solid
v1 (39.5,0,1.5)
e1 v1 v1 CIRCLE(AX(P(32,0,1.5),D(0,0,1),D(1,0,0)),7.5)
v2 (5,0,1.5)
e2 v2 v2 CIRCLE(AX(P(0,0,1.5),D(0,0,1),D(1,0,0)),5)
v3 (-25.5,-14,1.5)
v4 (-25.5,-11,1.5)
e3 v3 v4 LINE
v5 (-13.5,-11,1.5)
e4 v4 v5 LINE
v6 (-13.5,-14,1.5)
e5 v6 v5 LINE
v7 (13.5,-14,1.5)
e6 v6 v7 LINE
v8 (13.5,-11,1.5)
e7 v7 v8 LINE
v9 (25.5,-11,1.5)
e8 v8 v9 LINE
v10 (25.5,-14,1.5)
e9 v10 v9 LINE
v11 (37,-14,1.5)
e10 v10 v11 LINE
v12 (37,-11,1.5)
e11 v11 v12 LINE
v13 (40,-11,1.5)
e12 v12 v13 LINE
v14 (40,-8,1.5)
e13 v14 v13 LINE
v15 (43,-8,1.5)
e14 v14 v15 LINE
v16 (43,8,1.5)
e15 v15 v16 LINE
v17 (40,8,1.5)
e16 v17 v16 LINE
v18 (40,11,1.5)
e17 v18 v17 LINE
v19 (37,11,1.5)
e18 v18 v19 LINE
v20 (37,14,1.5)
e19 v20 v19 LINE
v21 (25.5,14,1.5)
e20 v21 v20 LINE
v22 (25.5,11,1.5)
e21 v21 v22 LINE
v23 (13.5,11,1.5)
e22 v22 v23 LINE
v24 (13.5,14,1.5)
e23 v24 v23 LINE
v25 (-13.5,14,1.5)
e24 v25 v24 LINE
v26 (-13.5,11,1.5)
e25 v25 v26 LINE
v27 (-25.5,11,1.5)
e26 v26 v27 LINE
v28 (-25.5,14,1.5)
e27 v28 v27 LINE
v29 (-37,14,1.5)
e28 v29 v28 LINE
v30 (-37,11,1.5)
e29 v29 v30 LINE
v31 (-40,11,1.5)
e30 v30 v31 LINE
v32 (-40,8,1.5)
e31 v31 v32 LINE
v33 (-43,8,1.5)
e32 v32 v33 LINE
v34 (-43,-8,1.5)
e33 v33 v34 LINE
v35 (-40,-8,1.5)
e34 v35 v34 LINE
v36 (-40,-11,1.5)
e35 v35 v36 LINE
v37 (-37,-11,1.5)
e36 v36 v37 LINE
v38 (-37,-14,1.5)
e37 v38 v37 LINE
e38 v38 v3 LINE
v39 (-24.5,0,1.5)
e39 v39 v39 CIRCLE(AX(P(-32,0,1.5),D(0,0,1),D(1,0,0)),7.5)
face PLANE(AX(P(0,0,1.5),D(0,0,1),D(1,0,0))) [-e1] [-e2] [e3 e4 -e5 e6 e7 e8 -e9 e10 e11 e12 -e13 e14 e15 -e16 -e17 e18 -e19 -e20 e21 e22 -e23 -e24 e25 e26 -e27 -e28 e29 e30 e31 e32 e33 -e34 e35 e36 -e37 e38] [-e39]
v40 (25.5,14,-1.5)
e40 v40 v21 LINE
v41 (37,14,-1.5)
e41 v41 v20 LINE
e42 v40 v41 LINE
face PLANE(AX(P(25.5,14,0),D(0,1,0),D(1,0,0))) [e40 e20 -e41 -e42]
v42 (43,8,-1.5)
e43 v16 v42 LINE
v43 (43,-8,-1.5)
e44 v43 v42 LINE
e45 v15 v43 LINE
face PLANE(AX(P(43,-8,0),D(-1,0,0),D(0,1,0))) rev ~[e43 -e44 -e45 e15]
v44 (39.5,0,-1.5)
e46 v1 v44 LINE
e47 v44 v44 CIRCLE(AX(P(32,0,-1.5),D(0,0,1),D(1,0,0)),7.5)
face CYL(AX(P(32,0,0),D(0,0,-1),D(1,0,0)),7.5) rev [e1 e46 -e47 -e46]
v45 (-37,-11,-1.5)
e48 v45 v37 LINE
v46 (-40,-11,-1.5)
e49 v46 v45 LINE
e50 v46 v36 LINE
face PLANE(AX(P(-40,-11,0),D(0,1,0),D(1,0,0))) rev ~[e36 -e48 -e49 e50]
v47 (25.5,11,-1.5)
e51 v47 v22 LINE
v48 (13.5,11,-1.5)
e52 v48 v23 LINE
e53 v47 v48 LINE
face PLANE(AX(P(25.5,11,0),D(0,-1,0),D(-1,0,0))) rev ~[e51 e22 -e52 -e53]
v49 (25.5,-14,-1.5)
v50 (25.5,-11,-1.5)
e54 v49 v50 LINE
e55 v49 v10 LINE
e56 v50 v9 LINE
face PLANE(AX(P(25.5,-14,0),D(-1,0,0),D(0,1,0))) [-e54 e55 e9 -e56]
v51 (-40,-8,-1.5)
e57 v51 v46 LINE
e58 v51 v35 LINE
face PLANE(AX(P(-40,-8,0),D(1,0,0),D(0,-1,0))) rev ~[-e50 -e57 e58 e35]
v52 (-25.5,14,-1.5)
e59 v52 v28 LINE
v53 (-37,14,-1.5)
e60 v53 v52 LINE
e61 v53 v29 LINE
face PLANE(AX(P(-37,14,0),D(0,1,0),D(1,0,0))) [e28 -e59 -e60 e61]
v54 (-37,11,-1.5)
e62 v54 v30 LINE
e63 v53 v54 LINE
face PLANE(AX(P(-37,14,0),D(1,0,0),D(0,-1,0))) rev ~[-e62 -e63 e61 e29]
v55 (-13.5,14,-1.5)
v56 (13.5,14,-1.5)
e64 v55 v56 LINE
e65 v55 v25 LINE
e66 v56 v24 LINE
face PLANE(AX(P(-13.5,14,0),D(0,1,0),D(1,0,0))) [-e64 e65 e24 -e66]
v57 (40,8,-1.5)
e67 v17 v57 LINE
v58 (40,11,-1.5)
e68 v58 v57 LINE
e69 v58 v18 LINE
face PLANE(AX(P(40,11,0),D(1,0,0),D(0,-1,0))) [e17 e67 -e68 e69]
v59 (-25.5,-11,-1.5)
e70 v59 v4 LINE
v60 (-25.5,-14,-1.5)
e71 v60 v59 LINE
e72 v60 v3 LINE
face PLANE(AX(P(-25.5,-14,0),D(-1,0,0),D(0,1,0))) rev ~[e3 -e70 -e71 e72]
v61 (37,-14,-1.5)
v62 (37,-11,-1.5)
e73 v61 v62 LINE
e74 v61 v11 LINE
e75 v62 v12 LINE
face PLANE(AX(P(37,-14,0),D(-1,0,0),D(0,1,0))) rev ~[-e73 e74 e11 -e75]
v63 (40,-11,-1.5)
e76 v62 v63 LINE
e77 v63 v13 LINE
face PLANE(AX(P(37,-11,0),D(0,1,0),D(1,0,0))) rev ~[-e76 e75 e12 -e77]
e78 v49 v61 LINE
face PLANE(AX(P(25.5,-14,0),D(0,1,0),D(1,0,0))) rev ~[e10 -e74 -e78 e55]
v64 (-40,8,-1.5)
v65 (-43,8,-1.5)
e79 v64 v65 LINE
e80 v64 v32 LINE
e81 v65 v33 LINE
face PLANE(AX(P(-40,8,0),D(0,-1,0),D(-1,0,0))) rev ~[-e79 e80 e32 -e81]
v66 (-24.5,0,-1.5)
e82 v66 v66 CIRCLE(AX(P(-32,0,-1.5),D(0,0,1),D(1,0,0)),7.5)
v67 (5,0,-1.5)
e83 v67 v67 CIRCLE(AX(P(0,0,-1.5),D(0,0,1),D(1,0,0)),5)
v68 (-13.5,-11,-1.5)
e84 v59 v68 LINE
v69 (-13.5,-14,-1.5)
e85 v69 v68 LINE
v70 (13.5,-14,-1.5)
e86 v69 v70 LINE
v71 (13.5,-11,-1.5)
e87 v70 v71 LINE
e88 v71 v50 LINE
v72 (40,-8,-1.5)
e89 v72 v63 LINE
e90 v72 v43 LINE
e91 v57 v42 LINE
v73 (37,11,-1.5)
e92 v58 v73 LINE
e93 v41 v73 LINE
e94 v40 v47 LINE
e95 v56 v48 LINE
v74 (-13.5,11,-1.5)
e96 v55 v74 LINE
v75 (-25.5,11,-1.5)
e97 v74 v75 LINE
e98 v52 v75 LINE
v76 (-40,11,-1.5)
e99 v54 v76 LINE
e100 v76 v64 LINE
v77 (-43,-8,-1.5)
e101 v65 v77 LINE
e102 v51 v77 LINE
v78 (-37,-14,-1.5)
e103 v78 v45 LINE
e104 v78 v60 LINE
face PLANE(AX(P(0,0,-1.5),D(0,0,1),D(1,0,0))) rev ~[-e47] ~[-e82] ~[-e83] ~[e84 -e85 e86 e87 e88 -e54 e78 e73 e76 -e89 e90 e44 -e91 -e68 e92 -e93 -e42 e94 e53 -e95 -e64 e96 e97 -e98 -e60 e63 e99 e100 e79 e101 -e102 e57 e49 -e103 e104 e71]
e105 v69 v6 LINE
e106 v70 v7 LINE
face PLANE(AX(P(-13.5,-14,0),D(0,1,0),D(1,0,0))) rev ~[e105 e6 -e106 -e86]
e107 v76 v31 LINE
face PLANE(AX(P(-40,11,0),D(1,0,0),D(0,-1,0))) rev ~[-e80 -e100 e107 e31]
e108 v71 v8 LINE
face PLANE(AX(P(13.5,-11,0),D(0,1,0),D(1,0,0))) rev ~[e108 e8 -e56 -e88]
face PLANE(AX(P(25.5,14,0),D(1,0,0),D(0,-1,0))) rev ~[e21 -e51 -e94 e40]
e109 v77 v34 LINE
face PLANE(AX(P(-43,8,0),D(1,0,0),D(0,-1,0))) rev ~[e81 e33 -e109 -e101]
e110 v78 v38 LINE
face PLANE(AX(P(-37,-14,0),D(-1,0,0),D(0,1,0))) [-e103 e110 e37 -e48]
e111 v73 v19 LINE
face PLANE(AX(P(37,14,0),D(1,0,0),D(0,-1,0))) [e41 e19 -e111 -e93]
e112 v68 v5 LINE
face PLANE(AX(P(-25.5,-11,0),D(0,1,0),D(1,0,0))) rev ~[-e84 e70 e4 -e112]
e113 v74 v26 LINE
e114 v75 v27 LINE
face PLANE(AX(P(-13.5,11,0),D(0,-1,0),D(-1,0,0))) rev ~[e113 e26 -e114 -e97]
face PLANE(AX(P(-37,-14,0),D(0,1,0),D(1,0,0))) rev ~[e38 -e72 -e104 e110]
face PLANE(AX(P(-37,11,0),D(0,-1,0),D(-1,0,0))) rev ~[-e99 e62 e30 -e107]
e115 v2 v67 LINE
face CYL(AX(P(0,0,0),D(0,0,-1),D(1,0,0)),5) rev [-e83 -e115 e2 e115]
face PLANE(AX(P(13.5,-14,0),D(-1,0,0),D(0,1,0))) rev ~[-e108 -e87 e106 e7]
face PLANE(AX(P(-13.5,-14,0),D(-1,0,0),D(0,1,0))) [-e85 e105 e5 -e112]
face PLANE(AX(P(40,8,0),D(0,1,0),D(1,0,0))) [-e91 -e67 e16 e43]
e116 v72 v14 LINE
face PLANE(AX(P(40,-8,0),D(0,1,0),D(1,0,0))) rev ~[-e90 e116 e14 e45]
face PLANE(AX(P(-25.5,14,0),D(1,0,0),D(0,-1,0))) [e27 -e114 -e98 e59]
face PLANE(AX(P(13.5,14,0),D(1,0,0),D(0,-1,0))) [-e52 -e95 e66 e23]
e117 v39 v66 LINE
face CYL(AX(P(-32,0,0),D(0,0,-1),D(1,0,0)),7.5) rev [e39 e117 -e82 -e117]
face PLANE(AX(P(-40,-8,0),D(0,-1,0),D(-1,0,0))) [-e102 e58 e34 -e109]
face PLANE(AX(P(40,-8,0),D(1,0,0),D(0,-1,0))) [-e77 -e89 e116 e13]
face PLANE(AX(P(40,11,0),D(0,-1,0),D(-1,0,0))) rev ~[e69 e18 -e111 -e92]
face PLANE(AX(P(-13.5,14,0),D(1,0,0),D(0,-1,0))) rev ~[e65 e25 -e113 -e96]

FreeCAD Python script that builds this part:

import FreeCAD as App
import Part
import Sketcher

V = App.Vector


def add_polygon(sketch, points):
    """Adds a closed chain of lines whose ends are joined by coincident constraints."""
    first, n = sketch.GeometryCount, len(points)
    for a, b in zip(points, points[1:] + points[:1]):
        sketch.addGeometry(Part.LineSegment(App.Vector(*a, 0), App.Vector(*b, 0)), False)
    for i in range(n):
        sketch.addConstraint(Sketcher.Constraint("Coincident", first + i, 2, first + (i + 1) % n, 1))

doc = App.newDocument("Part")
body = doc.addObject("PartDesign::Body", "Body")

sketch1 = body.newObject("Sketcher::SketchObject", "Sketch")
sketch1.AttachmentSupport = (doc.getObject("XY_Plane"), [""])
sketch1.MapMode = "FlatFace"
add_polygon(sketch1, [(40, 8), (40, 11), (37, 11), (37, 14), (25.5, 14), (25.5, 11), (13.5, 11), (13.5, 14), (-13.5, 14), (-13.5, 11), (-25.5, 11), (-25.5, 14), (-37, 14), (-37, 11), (-40, 11), (-40, 8), (-43, 8), (-43, -8), (-40, -8), (-40, -11), (-37, -11), (-37, -14), (-25.5, -14), (-25.5, -11), (-13.5, -11), (-13.5, -14), (13.5, -14), (13.5, -11), (25.5, -11), (25.5, -14), (37, -14), (37, -11), (40, -11), (40, -8), (43, -8), (43, 8)])
sketch1.addGeometry(Part.Circle(V(-32, 0, 0), V(0, 0, 1), 7.5), False)
sketch1.addGeometry(Part.Circle(V(0, 0, 0), V(0, 0, 1), 5), False)
sketch1.addGeometry(Part.Circle(V(32, 0, 0), V(0, 0, 1), 7.5), False)
sketch1.addConstraint([
    Sketcher.Constraint("Vertical", 0),
    Sketcher.Constraint("Horizontal", 1),
    Sketcher.Constraint("Vertical", 2),
    Sketcher.Constraint("Horizontal", 3),
    Sketcher.Constraint("Vertical", 4),
    Sketcher.Constraint("Horizontal", 5),
    Sketcher.Constraint("Vertical", 6),
    Sketcher.Constraint("Horizontal", 7),
    Sketcher.Constraint("Vertical", 8),
    Sketcher.Constraint("Horizontal", 9),
    Sketcher.Constraint("Vertical", 10),
    Sketcher.Constraint("Horizontal", 11),
    Sketcher.Constraint("Vertical", 12),
    Sketcher.Constraint("Horizontal", 13),
    Sketcher.Constraint("Vertical", 14),
    Sketcher.Constraint("Horizontal", 15),
    Sketcher.Constraint("Vertical", 16),
    Sketcher.Constraint("Horizontal", 17),
    Sketcher.Constraint("Vertical", 18),
    Sketcher.Constraint("Horizontal", 19),
    Sketcher.Constraint("Vertical", 20),
    Sketcher.Constraint("Horizontal", 21),
    Sketcher.Constraint("Vertical", 22),
    Sketcher.Constraint("Horizontal", 23),
    Sketcher.Constraint("Vertical", 24),
    Sketcher.Constraint("Horizontal", 25),
    Sketcher.Constraint("Vertical", 26),
    Sketcher.Constraint("Horizontal", 27),
    Sketcher.Constraint("Vertical", 28),
    Sketcher.Constraint("Horizontal", 29),
    Sketcher.Constraint("Vertical", 30),
    Sketcher.Constraint("Horizontal", 31),
    Sketcher.Constraint("Vertical", 32),
    Sketcher.Constraint("Horizontal", 33),
    Sketcher.Constraint("Vertical", 34),
    Sketcher.Constraint("Horizontal", 35),
    Sketcher.Constraint("Coincident", 37, 3, -1, 1),
    Sketcher.Constraint("Equal", 36, 38),
    Sketcher.Constraint("Symmetric", 36, 3, 38, 3, -1, 1),
    Sketcher.Constraint("Symmetric", 0, 2, 18, 2, -1, 1),
    Sketcher.Constraint("Symmetric", 2, 2, 20, 2, -1, 1),
    Sketcher.Constraint("Symmetric", 4, 2, 22, 2, -1, 1),
    Sketcher.Constraint("Symmetric", 6, 2, 24, 2, -1, 1),
    Sketcher.Constraint("Symmetric", 8, 2, 26, 2, -1, 1),
    Sketcher.Constraint("Symmetric", 10, 2, 28, 2, -1, 1),
    Sketcher.Constraint("Symmetric", 12, 2, 30, 2, -1, 1),
    Sketcher.Constraint("Symmetric", 14, 2, 32, 2, -1, 1),
    Sketcher.Constraint("Symmetric", 16, 2, 34, 2, -1, 1),
    Sketcher.Constraint("Symmetric", 5, 2, 8, 2, -2),
    Sketcher.Constraint("Symmetric", 3, 2, 10, 2, -2),
    Sketcher.Constraint("Symmetric", 1, 2, 12, 2, -2),
    Sketcher.Constraint("Symmetric", 17, 2, 32, 2, -2),
    Sketcher.Constraint("PointOnObject", 36, 3, -1),
    Sketcher.Constraint("Horizontal", 1, 2, 4, 2),
    Sketcher.Constraint("Horizontal", 3, 2, 6, 2),
    Sketcher.Constraint("Equal", 13, 15),
    Sketcher.Constraint("Equal", 35, 0),
    Sketcher.Constraint("Equal", 0, 2),
    Sketcher.Constraint("Diameter", 36, 15.0),
    Sketcher.Constraint("Diameter", 37, 10.0),
    Sketcher.Constraint("DistanceX", 1, 2, 1, 1, 3.0),
    Sketcher.Constraint("DistanceX", 5, 2, 5, 1, 12.0),
    Sketcher.Constraint("DistanceX", 36, 3, -1, 1, 32.0),
    Sketcher.Constraint("DistanceY", -1, 1, 0, 2, 11.0),
    Sketcher.Constraint("DistanceX", 15, 2, 36, 3, 11.0),
    Sketcher.Constraint("DistanceX", 7, 2, 7, 1, 27.0),
])
pad1 = body.newObject("PartDesign::Pad", "Pad")
pad1.Profile = sketch1
pad1.Length = 3
pad1.Midplane = True

doc.recompute()
